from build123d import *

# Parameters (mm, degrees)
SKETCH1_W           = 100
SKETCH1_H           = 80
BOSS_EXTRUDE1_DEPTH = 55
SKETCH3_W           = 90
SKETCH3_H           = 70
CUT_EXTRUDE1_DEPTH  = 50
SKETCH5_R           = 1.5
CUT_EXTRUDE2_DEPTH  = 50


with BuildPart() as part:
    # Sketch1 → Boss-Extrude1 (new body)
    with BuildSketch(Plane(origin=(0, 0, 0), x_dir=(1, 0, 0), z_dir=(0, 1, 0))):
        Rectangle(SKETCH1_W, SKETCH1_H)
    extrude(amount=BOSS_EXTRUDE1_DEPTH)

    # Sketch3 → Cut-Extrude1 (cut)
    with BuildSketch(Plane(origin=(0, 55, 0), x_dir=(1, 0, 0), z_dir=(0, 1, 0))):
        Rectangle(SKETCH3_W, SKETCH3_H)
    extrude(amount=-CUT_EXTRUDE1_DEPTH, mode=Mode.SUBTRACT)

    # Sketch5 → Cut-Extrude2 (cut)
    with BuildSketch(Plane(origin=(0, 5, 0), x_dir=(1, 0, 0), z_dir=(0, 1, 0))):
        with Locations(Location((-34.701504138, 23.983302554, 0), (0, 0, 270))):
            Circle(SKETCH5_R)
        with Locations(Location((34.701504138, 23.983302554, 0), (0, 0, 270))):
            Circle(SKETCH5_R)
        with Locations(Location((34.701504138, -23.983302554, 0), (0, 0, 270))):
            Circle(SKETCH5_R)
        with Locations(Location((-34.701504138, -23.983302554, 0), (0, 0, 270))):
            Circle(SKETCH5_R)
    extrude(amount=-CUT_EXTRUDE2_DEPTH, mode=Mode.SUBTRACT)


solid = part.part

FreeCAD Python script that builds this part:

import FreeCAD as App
import Part
import Sketcher

V = App.Vector
Q = App.Units.Quantity

doc = App.newDocument("Part")
params = doc.addObject("Spreadsheet::Sheet", "Params")
for row, (alias, value) in enumerate([
    ("sketch1_width", "100 mm"),
    ("sketch1_height", "80 mm"),
    ("pad1_length", "55 mm"),
    ("sketch2_width", "90 mm"),
    ("sketch2_height", "70 mm"),
    ("pocket1_length", "50 mm"),
    ("sketch3_diameter", "3 mm"),
    ("pocket2_length", "50 mm"),
], start=1):
    params.set(f"A{row}", alias)
    params.set(f"B{row}", "=" + value)
    params.setAlias(f"B{row}", alias)

body = doc.addObject("PartDesign::Body", "Body")

# Sketch on XZ plane
sketch1 = body.newObject("Sketcher::SketchObject", "Sketch")
sketch1.AttachmentSupport = (doc.getObject("XZ_Plane"), [""])
sketch1.MapMode = "FlatFace"
sketch1.addGeometry([
    Part.LineSegment(V(-50, -40, 0), V(-50, 40, 0)),
    Part.LineSegment(V(-50, 40, 0), V(50, 40, 0)),
    Part.LineSegment(V(50, 40, 0), V(50, -40, 0)),
    Part.LineSegment(V(50, -40, 0), V(-50, -40, 0)),
], False)
sketch1.addConstraint([
    Sketcher.Constraint("Coincident", 0, 2, 1, 1),
    Sketcher.Constraint("Coincident", 1, 2, 2, 1),
    Sketcher.Constraint("Coincident", 2, 2, 3, 1),
    Sketcher.Constraint("Coincident", 3, 2, 0, 1),
    Sketcher.Constraint("Vertical", 0),
    Sketcher.Constraint("Horizontal", 1),
    Sketcher.Constraint("Vertical", 2),
    Sketcher.Constraint("Horizontal", 3),
    Sketcher.Constraint("Symmetric", 0, 2, 2, 2, -1, 1),
    Sketcher.Constraint("DistanceX", 1, 1, 1, 2, Q("100 mm")),
    Sketcher.Constraint("DistanceY", 0, 1, 0, 2, Q("80 mm")),
])
sketch1.setExpression("Constraints[9]", "Params.sketch1_width")
sketch1.setExpression("Constraints[10]", "Params.sketch1_height")
pad1 = body.newObject("PartDesign::Pad", "Pad")
pad1.Profile = sketch1
pad1.setExpression("Length", "Params.pad1_length")
pad1.Reversed = True

# Sketch on XZ plane
sketch2 = body.newObject("Sketcher::SketchObject", "Sketch001")
sketch2.AttachmentSupport = (doc.getObject("XZ_Plane"), [""])
sketch2.MapMode = "FlatFace"
sketch2.AttachmentOffset = App.Placement(V(0, 0, -55), App.Rotation())
sketch2.addGeometry([
    Part.LineSegment(V(-45, -35, 0), V(-45, 35, 0)),
    Part.LineSegment(V(-45, 35, 0), V(45, 35, 0)),
    Part.LineSegment(V(45, 35, 0), V(45, -35, 0)),
    Part.LineSegment(V(45, -35, 0), V(-45, -35, 0)),
], False)
sketch2.addConstraint([
    Sketcher.Constraint("Coincident", 0, 2, 1, 1),
    Sketcher.Constraint("Coincident", 1, 2, 2, 1),
    Sketcher.Constraint("Coincident", 2, 2, 3, 1),
    Sketcher.Constraint("Coincident", 3, 2, 0, 1),
    Sketcher.Constraint("Vertical", 0),
    Sketcher.Constraint("Horizontal", 1),
    Sketcher.Constraint("Vertical", 2),
    Sketcher.Constraint("Horizontal", 3),
    Sketcher.Constraint("Symmetric", 0, 2, 2, 2, -1, 1),
    Sketcher.Constraint("DistanceX", 1, 1, 1, 2, Q("90 mm")),
    Sketcher.Constraint("DistanceY", 0, 1, 0, 2, Q("70 mm")),
])
sketch2.setExpression("Constraints[9]", "Params.sketch2_width")
sketch2.setExpression("Constraints[10]", "Params.sketch2_height")
pocket1 = body.newObject("PartDesign::Pocket", "Pocket")
pocket1.Profile = sketch2
pocket1.setExpression("Length", "Params.pocket1_length")
pocket1.Reversed = True

# Sketch on XZ plane
sketch3 = body.newObject("Sketcher::SketchObject", "Sketch002")
sketch3.AttachmentSupport = (doc.getObject("XZ_Plane"), [""])
sketch3.MapMode = "FlatFace"
sketch3.AttachmentOffset = App.Placement(V(0, 0, -5), App.Rotation())
sketch3.addGeometry([
    Part.Circle(V(-34.7, -24, 0), V(0, 0, 1), 1.5),
    Part.Circle(V(34.7, -24, 0), V(0, 0, 1), 1.5),
    Part.Circle(V(34.7, 24, 0), V(0, 0, 1), 1.5),
    Part.Circle(V(-34.7, 24, 0), V(0, 0, 1), 1.5),
], False)
sketch3.addConstraint([
    Sketcher.Constraint("Equal", 0, 1),
    Sketcher.Constraint("Equal", 1, 2),
    Sketcher.Constraint("Equal", 2, 3),
    Sketcher.Constraint("Symmetric", 0, 3, 2, 3, -1, 1),
    Sketcher.Constraint("Symmetric", 1, 3, 3, 3, -1, 1),
    Sketcher.Constraint("Symmetric", 0, 3, 1, 3, -2),
    Sketcher.Constraint("Diameter", 0, Q("3 mm")),
    Sketcher.Constraint("DistanceX", 0, 3, 1, 3, Q("69.403008 mm")),
    Sketcher.Constraint("DistanceY", 0, 3, -1, 1, Q("23.983303 mm")),
])
sketch3.setExpression("Constraints[6]", "Params.sketch3_diameter")
pocket2 = body.newObject("PartDesign::Pocket", "Pocket001")
pocket2.Profile = sketch3
pocket2.setExpression("Length", "Params.pocket2_length")
pocket2.Reversed = True

doc.recompute()
